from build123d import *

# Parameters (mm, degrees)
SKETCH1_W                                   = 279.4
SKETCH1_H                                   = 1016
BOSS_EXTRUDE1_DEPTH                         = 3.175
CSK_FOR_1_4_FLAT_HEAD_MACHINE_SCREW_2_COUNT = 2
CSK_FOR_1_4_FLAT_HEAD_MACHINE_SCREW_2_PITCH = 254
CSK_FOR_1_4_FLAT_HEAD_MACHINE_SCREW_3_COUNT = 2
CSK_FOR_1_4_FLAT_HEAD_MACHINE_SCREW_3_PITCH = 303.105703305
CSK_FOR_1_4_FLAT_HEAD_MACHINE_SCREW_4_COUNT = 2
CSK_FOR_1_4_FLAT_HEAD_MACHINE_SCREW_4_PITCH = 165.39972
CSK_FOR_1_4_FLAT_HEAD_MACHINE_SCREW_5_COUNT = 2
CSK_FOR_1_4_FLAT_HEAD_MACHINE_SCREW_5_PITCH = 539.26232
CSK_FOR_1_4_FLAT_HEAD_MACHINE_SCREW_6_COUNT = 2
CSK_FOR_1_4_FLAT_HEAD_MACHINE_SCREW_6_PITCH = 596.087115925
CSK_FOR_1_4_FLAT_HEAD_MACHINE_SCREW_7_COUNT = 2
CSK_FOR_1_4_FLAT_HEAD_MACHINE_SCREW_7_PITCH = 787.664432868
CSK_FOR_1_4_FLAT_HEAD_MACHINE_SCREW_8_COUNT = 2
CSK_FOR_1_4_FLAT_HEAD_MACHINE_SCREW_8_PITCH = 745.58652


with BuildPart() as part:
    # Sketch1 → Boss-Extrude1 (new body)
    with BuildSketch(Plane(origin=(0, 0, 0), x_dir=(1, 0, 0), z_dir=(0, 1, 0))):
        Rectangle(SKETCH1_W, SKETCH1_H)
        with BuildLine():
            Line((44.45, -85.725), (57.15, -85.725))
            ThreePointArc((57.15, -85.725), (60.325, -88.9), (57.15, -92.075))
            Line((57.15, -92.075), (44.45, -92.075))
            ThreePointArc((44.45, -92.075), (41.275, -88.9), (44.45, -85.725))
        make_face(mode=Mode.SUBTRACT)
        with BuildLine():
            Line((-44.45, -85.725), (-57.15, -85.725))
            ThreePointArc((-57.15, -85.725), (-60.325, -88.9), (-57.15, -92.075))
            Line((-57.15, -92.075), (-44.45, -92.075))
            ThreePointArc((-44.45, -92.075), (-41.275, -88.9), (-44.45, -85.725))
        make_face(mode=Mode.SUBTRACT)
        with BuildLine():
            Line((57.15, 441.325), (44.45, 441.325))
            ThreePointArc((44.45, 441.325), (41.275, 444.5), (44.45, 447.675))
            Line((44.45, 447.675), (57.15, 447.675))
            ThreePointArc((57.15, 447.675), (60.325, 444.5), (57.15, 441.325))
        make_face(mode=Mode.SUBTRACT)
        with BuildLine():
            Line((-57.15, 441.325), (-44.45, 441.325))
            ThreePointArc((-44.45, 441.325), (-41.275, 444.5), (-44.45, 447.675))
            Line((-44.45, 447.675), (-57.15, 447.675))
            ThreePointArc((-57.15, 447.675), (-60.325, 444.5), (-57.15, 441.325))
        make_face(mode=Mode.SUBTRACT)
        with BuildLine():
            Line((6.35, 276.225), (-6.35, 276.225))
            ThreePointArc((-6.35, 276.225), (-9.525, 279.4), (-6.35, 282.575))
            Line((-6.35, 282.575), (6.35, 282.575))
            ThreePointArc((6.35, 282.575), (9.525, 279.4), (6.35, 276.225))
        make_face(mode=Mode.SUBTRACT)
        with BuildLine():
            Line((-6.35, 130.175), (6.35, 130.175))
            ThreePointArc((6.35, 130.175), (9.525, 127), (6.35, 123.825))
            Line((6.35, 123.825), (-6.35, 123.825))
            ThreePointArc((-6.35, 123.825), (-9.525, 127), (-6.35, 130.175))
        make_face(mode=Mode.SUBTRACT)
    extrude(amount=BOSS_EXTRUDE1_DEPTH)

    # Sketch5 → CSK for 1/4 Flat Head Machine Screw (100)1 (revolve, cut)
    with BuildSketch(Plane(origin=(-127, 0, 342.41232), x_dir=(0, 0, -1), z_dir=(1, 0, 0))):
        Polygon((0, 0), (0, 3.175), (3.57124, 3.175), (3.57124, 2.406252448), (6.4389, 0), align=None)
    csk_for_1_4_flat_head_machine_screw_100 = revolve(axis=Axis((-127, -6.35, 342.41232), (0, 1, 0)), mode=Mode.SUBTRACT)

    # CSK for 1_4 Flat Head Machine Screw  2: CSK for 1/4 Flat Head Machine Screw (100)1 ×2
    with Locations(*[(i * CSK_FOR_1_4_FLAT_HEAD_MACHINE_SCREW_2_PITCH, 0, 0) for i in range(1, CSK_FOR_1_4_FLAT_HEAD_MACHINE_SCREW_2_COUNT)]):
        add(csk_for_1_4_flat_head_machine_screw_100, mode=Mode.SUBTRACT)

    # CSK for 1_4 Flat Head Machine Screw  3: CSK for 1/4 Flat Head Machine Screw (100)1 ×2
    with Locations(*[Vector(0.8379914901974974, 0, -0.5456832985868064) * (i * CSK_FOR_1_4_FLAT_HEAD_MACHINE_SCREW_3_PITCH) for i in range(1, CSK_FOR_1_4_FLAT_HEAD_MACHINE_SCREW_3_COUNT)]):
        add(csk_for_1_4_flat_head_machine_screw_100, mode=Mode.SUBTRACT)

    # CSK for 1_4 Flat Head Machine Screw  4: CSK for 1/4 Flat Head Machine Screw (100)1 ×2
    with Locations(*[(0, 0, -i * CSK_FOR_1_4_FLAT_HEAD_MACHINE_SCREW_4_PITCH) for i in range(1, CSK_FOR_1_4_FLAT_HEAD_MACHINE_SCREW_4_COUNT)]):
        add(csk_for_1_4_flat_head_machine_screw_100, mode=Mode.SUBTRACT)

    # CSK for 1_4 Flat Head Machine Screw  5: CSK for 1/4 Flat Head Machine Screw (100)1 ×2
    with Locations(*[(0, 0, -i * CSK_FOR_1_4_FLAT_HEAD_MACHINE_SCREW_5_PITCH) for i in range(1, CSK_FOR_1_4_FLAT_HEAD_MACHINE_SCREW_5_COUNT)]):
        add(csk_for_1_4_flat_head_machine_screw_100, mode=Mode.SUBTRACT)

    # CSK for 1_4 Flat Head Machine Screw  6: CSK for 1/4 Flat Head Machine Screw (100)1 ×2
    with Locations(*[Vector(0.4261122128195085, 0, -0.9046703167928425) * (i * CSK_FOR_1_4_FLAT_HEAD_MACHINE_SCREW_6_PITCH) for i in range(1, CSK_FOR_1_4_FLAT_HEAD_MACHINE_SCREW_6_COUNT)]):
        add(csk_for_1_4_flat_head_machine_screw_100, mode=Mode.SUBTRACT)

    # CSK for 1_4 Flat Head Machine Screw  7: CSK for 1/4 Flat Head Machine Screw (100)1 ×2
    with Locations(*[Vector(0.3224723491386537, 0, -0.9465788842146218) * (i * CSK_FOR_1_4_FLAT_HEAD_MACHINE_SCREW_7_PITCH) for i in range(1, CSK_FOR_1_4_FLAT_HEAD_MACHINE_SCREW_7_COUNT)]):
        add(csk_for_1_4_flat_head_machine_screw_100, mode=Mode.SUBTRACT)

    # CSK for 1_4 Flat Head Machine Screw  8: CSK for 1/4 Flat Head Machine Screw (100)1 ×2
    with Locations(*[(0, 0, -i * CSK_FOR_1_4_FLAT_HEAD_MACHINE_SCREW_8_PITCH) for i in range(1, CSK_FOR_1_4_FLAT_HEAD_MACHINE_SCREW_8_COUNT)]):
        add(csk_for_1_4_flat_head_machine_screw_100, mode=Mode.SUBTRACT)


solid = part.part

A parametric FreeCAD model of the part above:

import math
import FreeCAD as App
import Part
import Sketcher

V = App.Vector
Q = App.Units.Quantity


def add_polygon(sketch, points):
    """Adds a closed chain of lines whose ends are joined by coincident constraints."""
    first, n = sketch.GeometryCount, len(points)
    for a, b in zip(points, points[1:] + points[:1]):
        sketch.addGeometry(Part.LineSegment(App.Vector(*a, 0), App.Vector(*b, 0)), False)
    for i in range(n):
        sketch.addConstraint(Sketcher.Constraint("Coincident", first + i, 2, first + (i + 1) % n, 1))

doc = App.newDocument("Part")
params = doc.addObject("Spreadsheet::Sheet", "Params")
for row, (alias, value) in enumerate([
    ("sketch1_width", "11 in"),
    ("sketch1_height", "40 in"),
    ("sketch1_width2", "0.5 in"),
    ("sketch1_radius", "0.125 in"),
    ("pad1_length", "0.125 in"),
    ("sketch2_width", "0.125 in"),
    ("groove_angle", "360 deg"),
    ("linearpattern_pitch", "10 in"),
    ("linearpattern2_pitch", "303.105703 mm"),
    ("linearpattern3_pitch", "6.5118 in"),
    ("linearpattern4_pitch", "21.2308 in"),
    ("linearpattern5_pitch", "596.087116 mm"),
    ("linearpattern6_pitch", "787.664433 mm"),
    ("linearpattern7_pitch", "29.3538 in"),
], start=1):
    params.set(f"A{row}", alias)
    params.set(f"B{row}", "=" + value)
    params.setAlias(f"B{row}", alias)

body = doc.addObject("PartDesign::Body", "Body")

sketch1 = doc.addObject("Sketcher::SketchObject", "Sketch")
body.addObject(sketch1)
sketch1.AttachmentSupport = (doc.XZ_Plane, [""])
sketch1.MapMode = "FlatFace"
add_polygon(sketch1, [(-139.7, -508), (-139.7, 508), (139.7, 508), (139.7, -508)])
sketch1.addGeometry(Part.LineSegment(V(-57.15, 85.725, 0), V(-44.45, 85.725, 0)), False)
sketch1.addGeometry(Part.ArcOfCircle(Part.Circle(V(-44.45, 88.9, 0), V(0, 0, 1), 3.175), math.radians(-90), math.radians(90)), False)
sketch1.addGeometry(Part.LineSegment(V(-44.45, 92.075, 0), V(-57.15, 92.075, 0)), False)
sketch1.addGeometry(Part.ArcOfCircle(Part.Circle(V(-57.15, 88.9, 0), V(0, 0, 1), 3.175), math.radians(90), math.radians(270)), False)
sketch1.addGeometry(Part.ArcOfCircle(Part.Circle(V(-6.35, -127, 0), V(0, 0, 1), 3.175), math.radians(90), math.radians(270)), False)
sketch1.addGeometry(Part.LineSegment(V(-6.35, -130.175, 0), V(6.35, -130.175, 0)), False)
sketch1.addGeometry(Part.ArcOfCircle(Part.Circle(V(6.35, -127, 0), V(0, 0, 1), 3.175), math.radians(-90), math.radians(90)), False)
sketch1.addGeometry(Part.LineSegment(V(6.35, -123.825, 0), V(-6.35, -123.825, 0)), False)
sketch1.addGeometry(Part.ArcOfCircle(Part.Circle(V(44.45, 88.9, 0), V(0, 0, 1), 3.175), math.radians(90), math.radians(270)), False)
sketch1.addGeometry(Part.LineSegment(V(44.45, 85.725, 0), V(57.15, 85.725, 0)), False)
sketch1.addGeometry(Part.ArcOfCircle(Part.Circle(V(57.15, 88.9, 0), V(0, 0, 1), 3.175), math.radians(-90), math.radians(90)), False)
sketch1.addGeometry(Part.LineSegment(V(57.15, 92.075, 0), V(44.45, 92.075, 0)), False)
sketch1.addGeometry(Part.ArcOfCircle(Part.Circle(V(6.35, -279.4, 0), V(0, 0, 1), 3.175), math.radians(-90), math.radians(90)), False)
sketch1.addGeometry(Part.LineSegment(V(6.35, -276.225, 0), V(-6.35, -276.225, 0)), False)
sketch1.addGeometry(Part.ArcOfCircle(Part.Circle(V(-6.35, -279.4, 0), V(0, 0, 1), 3.175), math.radians(90), math.radians(270)), False)
sketch1.addGeometry(Part.LineSegment(V(-6.35, -282.575, 0), V(6.35, -282.575, 0)), False)
sketch1.addGeometry(Part.LineSegment(V(-44.45, -441.325, 0), V(-57.15, -441.325, 0)), False)
sketch1.addGeometry(Part.ArcOfCircle(Part.Circle(V(-57.15, -444.5, 0), V(0, 0, 1), 3.175), math.radians(90), math.radians(270)), False)
sketch1.addGeometry(Part.LineSegment(V(-57.15, -447.675, 0), V(-44.45, -447.675, 0)), False)
sketch1.addGeometry(Part.ArcOfCircle(Part.Circle(V(-44.45, -444.5, 0), V(0, 0, 1), 3.175), math.radians(-90), math.radians(90)), False)
sketch1.addGeometry(Part.ArcOfCircle(Part.Circle(V(57.15, -444.5, 0), V(0, 0, 1), 3.175), math.radians(-90), math.radians(90)), False)
sketch1.addGeometry(Part.LineSegment(V(57.15, -441.325, 0), V(44.45, -441.325, 0)), False)
sketch1.addGeometry(Part.ArcOfCircle(Part.Circle(V(44.45, -444.5, 0), V(0, 0, 1), 3.175), math.radians(90), math.radians(270)), False)
sketch1.addGeometry(Part.LineSegment(V(44.45, -447.675, 0), V(57.15, -447.675, 0)), False)
sketch1.addConstraint(Sketcher.Constraint("Tangent", 4, 2, 5, 1))
sketch1.addConstraint(Sketcher.Constraint("Tangent", 5, 2, 6, 1))
sketch1.addConstraint(Sketcher.Constraint("Tangent", 6, 2, 7, 1))
sketch1.addConstraint(Sketcher.Constraint("Tangent", 7, 2, 4, 1))
sketch1.addConstraint(Sketcher.Constraint("Tangent", 8, 2, 9, 1))
sketch1.addConstraint(Sketcher.Constraint("Tangent", 9, 2, 10, 1))
sketch1.addConstraint(Sketcher.Constraint("Tangent", 10, 2, 11, 1))
sketch1.addConstraint(Sketcher.Constraint("Tangent", 11, 2, 8, 1))
sketch1.addConstraint(Sketcher.Constraint("Tangent", 12, 2, 13, 1))
sketch1.addConstraint(Sketcher.Constraint("Tangent", 13, 2, 14, 1))
sketch1.addConstraint(Sketcher.Constraint("Tangent", 14, 2, 15, 1))
sketch1.addConstraint(Sketcher.Constraint("Tangent", 15, 2, 12, 1))
sketch1.addConstraint(Sketcher.Constraint("Tangent", 16, 2, 17, 1))
sketch1.addConstraint(Sketcher.Constraint("Tangent", 17, 2, 18, 1))
sketch1.addConstraint(Sketcher.Constraint("Tangent", 18, 2, 19, 1))
sketch1.addConstraint(Sketcher.Constraint("Tangent", 19, 2, 16, 1))
sketch1.addConstraint(Sketcher.Constraint("Tangent", 20, 2, 21, 1))
sketch1.addConstraint(Sketcher.Constraint("Tangent", 21, 2, 22, 1))
sketch1.addConstraint(Sketcher.Constraint("Tangent", 22, 2, 23, 1))
sketch1.addConstraint(Sketcher.Constraint("Tangent", 23, 2, 20, 1))
sketch1.addConstraint(Sketcher.Constraint("Tangent", 24, 2, 25, 1))
sketch1.addConstraint(Sketcher.Constraint("Tangent", 25, 2, 26, 1))
sketch1.addConstraint(Sketcher.Constraint("Tangent", 26, 2, 27, 1))
sketch1.addConstraint(Sketcher.Constraint("Tangent", 27, 2, 24, 1))
sketch1.addConstraint(Sketcher.Constraint("Vertical", 0))
sketch1.addConstraint(Sketcher.Constraint("Horizontal", 1))
sketch1.addConstraint(Sketcher.Constraint("Vertical", 2))
sketch1.addConstraint(Sketcher.Constraint("Horizontal", 3))
sketch1.addConstraint(Sketcher.Constraint("Horizontal", 4))
sketch1.addConstraint(Sketcher.Constraint("Horizontal", 6))
sketch1.addConstraint(Sketcher.Constraint("Horizontal", 9))
sketch1.addConstraint(Sketcher.Constraint("Horizontal", 11))
sketch1.addConstraint(Sketcher.Constraint("Horizontal", 13))
sketch1.addConstraint(Sketcher.Constraint("Horizontal", 15))
sketch1.addConstraint(Sketcher.Constraint("Horizontal", 17))
sketch1.addConstraint(Sketcher.Constraint("Horizontal", 19))
sketch1.addConstraint(Sketcher.Constraint("Horizontal", 20))
sketch1.addConstraint(Sketcher.Constraint("Horizontal", 22))
sketch1.addConstraint(Sketcher.Constraint("Horizontal", 25))
sketch1.addConstraint(Sketcher.Constraint("Horizontal", 27))
sketch1.addConstraint(Sketcher.Constraint("Equal", 7, 8))
sketch1.addConstraint(Sketcher.Constraint("Equal", 10, 12))
sketch1.addConstraint(Sketcher.Constraint("Equal", 14, 16))
sketch1.addConstraint(Sketcher.Constraint("Equal", 18, 21))
sketch1.addConstraint(Sketcher.Constraint("Equal", 23, 24))
sketch1.addConstraint(Sketcher.Constraint("Symmetric", 0, 2, 2, 2, -1, 1))
sketch1.addConstraint(Sketcher.Constraint("Symmetric", 5, 3, 12, 3, -2))
sketch1.addConstraint(Sketcher.Constraint("Symmetric", 21, 3, 24, 3, -2))
sketch1.addConstraint(Sketcher.Constraint("Vertical", 10, 3, 16, 3))
sketch1.addConstraint(Sketcher.Constraint("Vertical", 8, 3, 18, 3))
sketch1.addConstraint(Sketcher.Constraint("Vertical", 7, 3, 21, 3))
sketch1.addConstraint(Sketcher.Constraint("Vertical", 5, 3, 23, 3))
sketch1.addConstraint(Sketcher.Constraint("Vertical", 14, 3, 24, 3))
sketch1.addConstraint(Sketcher.Constraint("Vertical", 12, 3, 26, 3))
sketch1.addConstraint(Sketcher.Constraint("Equal", 6, 9))
sketch1.addConstraint(Sketcher.Constraint("DistanceX", 1, 1, 1, 2, Q("11 in")))
sketch1.addConstraint(Sketcher.Constraint("DistanceY", 0, 1, 0, 2, Q("40 in")))
sketch1.addConstraint(Sketcher.Constraint("DistanceX", 4, 1, 4, 2, Q("0.5 in")))
sketch1.addConstraint(Sketcher.Constraint("DistanceY", 8, 3, -1, 1, Q("5 in")))
sketch1.addConstraint(Sketcher.Constraint("DistanceY", 16, 3, -1, 1, Q("11 in")))
sketch1.addConstraint(Sketcher.Constraint("Radius", 5, Q("0.125 in")))
sketch1.addConstraint(Sketcher.Constraint("DistanceX", 7, 3, 8, 3, Q("2 in")))
sketch1.addConstraint(Sketcher.Constraint("DistanceX", 7, 3, 12, 3, Q("4 in")))
sketch1.addConstraint(Sketcher.Constraint("DistanceY", 21, 3, 7, 3, Q("21 in")))
sketch1.addConstraint(Sketcher.Constraint("DistanceY", -1, 1, 5, 3, Q("3.5 in")))
sketch1.setExpression("Constraints[59]", "Params.sketch1_width")
sketch1.setExpression("Constraints[60]", "Params.sketch1_height")
sketch1.setExpression("Constraints[61]", "Params.sketch1_width2")
sketch1.setExpression("Constraints[64]", "Params.sketch1_radius")
pad1 = doc.addObject("PartDesign::Pad", "Pad")
body.addObject(pad1)
pad1.Profile = sketch1
pad1.setExpression("Length", "Params.pad1_length")
pad1.Reversed = True

sketch2 = doc.addObject("Sketcher::SketchObject", "Sketch001")
body.addObject(sketch2)
sketch2.AttachmentSupport = (doc.YZ_Plane, [""])
sketch2.MapMode = "FlatFace"
sketch2.AttachmentOffset = App.Placement(V(0, 0, -5 * 25.4), App.Rotation())
add_polygon(sketch2, [(3.175, 342.41232), (0, 342.41232), (0, 335.97342), (2.406252, 338.84108), (3.175, 338.84108)])
sketch2.addGeometry(Part.LineSegment(V(0, 342.41232, 0), V(3.175, 342.41232, 0)), True)
sketch2.addConstraint(Sketcher.Constraint("Horizontal", 0))
sketch2.addConstraint(Sketcher.Constraint("Vertical", 1))
sketch2.addConstraint(Sketcher.Constraint("Horizontal", 3))
sketch2.addConstraint(Sketcher.Constraint("Vertical", 4))
sketch2.addConstraint(Sketcher.Constraint("Horizontal", 5))
sketch2.addConstraint(Sketcher.Constraint("Coincident", 5, 1, 0, 2))
sketch2.addConstraint(Sketcher.Constraint("PointOnObject", 0, 2, -2))
sketch2.addConstraint(Sketcher.Constraint("Vertical", 3, 2, 5, 2))
sketch2.addConstraint(Sketcher.Constraint("Angle", 2, Q("50 deg")))
sketch2.addConstraint(Sketcher.Constraint("DistanceX", 0, 2, 0, 1, Q("0.125 in")))
sketch2.addConstraint(Sketcher.Constraint("DistanceY", 1, 2, 1, 1, Q("0.2535 in")))
sketch2.addConstraint(Sketcher.Constraint("DistanceY", 4, 1, 4, 2, Q("0.1406 in")))
sketch2.addConstraint(Sketcher.Constraint("DistanceY", -1, 1, 0, 2, Q("13.4808 in")))
sketch2.setExpression("Constraints[14]", "Params.sketch2_width")
groove = doc.addObject("PartDesign::Groove", "Groove")
body.addObject(groove)
groove.Profile = sketch2
groove.ReferenceAxis = (sketch2, ["Axis0"])
groove.setExpression("Angle", "Params.groove_angle")
doc.recompute()

linearpattern = doc.addObject("PartDesign::LinearPattern", "LinearPattern")
body.addObject(linearpattern)
linearpattern.Originals = [groove]
linearpattern.Direction = (doc.X_Axis, [""])
linearpattern.Mode = "offset"
linearpattern.setExpression("Offset", "Params.linearpattern_pitch")
linearpattern.Occurrences = 2
body.Tip = linearpattern
doc.recompute()

datumline = doc.addObject("PartDesign::Line", "DatumLine")
body.addObject(datumline)
datumline.Placement = App.Placement(V(0, 0, 0), App.Rotation(V(0, 0, 1), V(0.83799149, 0, -0.545683299)))
linearpattern2 = doc.addObject("PartDesign::LinearPattern", "LinearPattern001")
body.addObject(linearpattern2)
linearpattern2.Originals = [groove]
linearpattern2.Direction = (datumline, [""])
linearpattern2.Mode = "offset"
linearpattern2.setExpression("Offset", "Params.linearpattern2_pitch")
linearpattern2.Occurrences = 2
body.Tip = linearpattern2
doc.recompute()

linearpattern3 = doc.addObject("PartDesign::LinearPattern", "LinearPattern002")
body.addObject(linearpattern3)
linearpattern3.Originals = [groove]
linearpattern3.Direction = (doc.Z_Axis, [""])
linearpattern3.Mode = "offset"
linearpattern3.setExpression("Offset", "Params.linearpattern3_pitch")
linearpattern3.Occurrences = 2
linearpattern3.Reversed = True
body.Tip = linearpattern3
doc.recompute()

linearpattern4 = doc.addObject("PartDesign::LinearPattern", "LinearPattern003")
body.addObject(linearpattern4)
linearpattern4.Originals = [groove]
linearpattern4.Direction = (doc.Z_Axis, [""])
linearpattern4.Mode = "offset"
linearpattern4.setExpression("Offset", "Params.linearpattern4_pitch")
linearpattern4.Occurrences = 2
linearpattern4.Reversed = True
body.Tip = linearpattern4
doc.recompute()

datumline2 = doc.addObject("PartDesign::Line", "DatumLine001")
body.addObject(datumline2)
datumline2.Placement = App.Placement(V(0, 0, 0), App.Rotation(V(0, 0, 1), V(0.426112213, 0, -0.904670317)))
linearpattern5 = doc.addObject("PartDesign::LinearPattern", "LinearPattern004")
body.addObject(linearpattern5)
linearpattern5.Originals = [groove]
linearpattern5.Direction = (datumline2, [""])
linearpattern5.Mode = "offset"
linearpattern5.setExpression("Offset", "Params.linearpattern5_pitch")
linearpattern5.Occurrences = 2
body.Tip = linearpattern5
doc.recompute()

datumline3 = doc.addObject("PartDesign::Line", "DatumLine002")
body.addObject(datumline3)
datumline3.Placement = App.Placement(V(0, 0, 0), App.Rotation(V(0, 0, 1), V(0.322472349, 0, -0.946578884)))
linearpattern6 = doc.addObject("PartDesign::LinearPattern", "LinearPattern005")
body.addObject(linearpattern6)
linearpattern6.Originals = [groove]
linearpattern6.Direction = (datumline3, [""])
linearpattern6.Mode = "offset"
linearpattern6.setExpression("Offset", "Params.linearpattern6_pitch")
linearpattern6.Occurrences = 2
body.Tip = linearpattern6
doc.recompute()

linearpattern7 = doc.addObject("PartDesign::LinearPattern", "LinearPattern006")
body.addObject(linearpattern7)
linearpattern7.Originals = [groove]
linearpattern7.Direction = (doc.Z_Axis, [""])
linearpattern7.Mode = "offset"
linearpattern7.setExpression("Offset", "Params.linearpattern7_pitch")
linearpattern7.Occurrences = 2
linearpattern7.Reversed = True
body.Tip = linearpattern7

doc.recompute()
